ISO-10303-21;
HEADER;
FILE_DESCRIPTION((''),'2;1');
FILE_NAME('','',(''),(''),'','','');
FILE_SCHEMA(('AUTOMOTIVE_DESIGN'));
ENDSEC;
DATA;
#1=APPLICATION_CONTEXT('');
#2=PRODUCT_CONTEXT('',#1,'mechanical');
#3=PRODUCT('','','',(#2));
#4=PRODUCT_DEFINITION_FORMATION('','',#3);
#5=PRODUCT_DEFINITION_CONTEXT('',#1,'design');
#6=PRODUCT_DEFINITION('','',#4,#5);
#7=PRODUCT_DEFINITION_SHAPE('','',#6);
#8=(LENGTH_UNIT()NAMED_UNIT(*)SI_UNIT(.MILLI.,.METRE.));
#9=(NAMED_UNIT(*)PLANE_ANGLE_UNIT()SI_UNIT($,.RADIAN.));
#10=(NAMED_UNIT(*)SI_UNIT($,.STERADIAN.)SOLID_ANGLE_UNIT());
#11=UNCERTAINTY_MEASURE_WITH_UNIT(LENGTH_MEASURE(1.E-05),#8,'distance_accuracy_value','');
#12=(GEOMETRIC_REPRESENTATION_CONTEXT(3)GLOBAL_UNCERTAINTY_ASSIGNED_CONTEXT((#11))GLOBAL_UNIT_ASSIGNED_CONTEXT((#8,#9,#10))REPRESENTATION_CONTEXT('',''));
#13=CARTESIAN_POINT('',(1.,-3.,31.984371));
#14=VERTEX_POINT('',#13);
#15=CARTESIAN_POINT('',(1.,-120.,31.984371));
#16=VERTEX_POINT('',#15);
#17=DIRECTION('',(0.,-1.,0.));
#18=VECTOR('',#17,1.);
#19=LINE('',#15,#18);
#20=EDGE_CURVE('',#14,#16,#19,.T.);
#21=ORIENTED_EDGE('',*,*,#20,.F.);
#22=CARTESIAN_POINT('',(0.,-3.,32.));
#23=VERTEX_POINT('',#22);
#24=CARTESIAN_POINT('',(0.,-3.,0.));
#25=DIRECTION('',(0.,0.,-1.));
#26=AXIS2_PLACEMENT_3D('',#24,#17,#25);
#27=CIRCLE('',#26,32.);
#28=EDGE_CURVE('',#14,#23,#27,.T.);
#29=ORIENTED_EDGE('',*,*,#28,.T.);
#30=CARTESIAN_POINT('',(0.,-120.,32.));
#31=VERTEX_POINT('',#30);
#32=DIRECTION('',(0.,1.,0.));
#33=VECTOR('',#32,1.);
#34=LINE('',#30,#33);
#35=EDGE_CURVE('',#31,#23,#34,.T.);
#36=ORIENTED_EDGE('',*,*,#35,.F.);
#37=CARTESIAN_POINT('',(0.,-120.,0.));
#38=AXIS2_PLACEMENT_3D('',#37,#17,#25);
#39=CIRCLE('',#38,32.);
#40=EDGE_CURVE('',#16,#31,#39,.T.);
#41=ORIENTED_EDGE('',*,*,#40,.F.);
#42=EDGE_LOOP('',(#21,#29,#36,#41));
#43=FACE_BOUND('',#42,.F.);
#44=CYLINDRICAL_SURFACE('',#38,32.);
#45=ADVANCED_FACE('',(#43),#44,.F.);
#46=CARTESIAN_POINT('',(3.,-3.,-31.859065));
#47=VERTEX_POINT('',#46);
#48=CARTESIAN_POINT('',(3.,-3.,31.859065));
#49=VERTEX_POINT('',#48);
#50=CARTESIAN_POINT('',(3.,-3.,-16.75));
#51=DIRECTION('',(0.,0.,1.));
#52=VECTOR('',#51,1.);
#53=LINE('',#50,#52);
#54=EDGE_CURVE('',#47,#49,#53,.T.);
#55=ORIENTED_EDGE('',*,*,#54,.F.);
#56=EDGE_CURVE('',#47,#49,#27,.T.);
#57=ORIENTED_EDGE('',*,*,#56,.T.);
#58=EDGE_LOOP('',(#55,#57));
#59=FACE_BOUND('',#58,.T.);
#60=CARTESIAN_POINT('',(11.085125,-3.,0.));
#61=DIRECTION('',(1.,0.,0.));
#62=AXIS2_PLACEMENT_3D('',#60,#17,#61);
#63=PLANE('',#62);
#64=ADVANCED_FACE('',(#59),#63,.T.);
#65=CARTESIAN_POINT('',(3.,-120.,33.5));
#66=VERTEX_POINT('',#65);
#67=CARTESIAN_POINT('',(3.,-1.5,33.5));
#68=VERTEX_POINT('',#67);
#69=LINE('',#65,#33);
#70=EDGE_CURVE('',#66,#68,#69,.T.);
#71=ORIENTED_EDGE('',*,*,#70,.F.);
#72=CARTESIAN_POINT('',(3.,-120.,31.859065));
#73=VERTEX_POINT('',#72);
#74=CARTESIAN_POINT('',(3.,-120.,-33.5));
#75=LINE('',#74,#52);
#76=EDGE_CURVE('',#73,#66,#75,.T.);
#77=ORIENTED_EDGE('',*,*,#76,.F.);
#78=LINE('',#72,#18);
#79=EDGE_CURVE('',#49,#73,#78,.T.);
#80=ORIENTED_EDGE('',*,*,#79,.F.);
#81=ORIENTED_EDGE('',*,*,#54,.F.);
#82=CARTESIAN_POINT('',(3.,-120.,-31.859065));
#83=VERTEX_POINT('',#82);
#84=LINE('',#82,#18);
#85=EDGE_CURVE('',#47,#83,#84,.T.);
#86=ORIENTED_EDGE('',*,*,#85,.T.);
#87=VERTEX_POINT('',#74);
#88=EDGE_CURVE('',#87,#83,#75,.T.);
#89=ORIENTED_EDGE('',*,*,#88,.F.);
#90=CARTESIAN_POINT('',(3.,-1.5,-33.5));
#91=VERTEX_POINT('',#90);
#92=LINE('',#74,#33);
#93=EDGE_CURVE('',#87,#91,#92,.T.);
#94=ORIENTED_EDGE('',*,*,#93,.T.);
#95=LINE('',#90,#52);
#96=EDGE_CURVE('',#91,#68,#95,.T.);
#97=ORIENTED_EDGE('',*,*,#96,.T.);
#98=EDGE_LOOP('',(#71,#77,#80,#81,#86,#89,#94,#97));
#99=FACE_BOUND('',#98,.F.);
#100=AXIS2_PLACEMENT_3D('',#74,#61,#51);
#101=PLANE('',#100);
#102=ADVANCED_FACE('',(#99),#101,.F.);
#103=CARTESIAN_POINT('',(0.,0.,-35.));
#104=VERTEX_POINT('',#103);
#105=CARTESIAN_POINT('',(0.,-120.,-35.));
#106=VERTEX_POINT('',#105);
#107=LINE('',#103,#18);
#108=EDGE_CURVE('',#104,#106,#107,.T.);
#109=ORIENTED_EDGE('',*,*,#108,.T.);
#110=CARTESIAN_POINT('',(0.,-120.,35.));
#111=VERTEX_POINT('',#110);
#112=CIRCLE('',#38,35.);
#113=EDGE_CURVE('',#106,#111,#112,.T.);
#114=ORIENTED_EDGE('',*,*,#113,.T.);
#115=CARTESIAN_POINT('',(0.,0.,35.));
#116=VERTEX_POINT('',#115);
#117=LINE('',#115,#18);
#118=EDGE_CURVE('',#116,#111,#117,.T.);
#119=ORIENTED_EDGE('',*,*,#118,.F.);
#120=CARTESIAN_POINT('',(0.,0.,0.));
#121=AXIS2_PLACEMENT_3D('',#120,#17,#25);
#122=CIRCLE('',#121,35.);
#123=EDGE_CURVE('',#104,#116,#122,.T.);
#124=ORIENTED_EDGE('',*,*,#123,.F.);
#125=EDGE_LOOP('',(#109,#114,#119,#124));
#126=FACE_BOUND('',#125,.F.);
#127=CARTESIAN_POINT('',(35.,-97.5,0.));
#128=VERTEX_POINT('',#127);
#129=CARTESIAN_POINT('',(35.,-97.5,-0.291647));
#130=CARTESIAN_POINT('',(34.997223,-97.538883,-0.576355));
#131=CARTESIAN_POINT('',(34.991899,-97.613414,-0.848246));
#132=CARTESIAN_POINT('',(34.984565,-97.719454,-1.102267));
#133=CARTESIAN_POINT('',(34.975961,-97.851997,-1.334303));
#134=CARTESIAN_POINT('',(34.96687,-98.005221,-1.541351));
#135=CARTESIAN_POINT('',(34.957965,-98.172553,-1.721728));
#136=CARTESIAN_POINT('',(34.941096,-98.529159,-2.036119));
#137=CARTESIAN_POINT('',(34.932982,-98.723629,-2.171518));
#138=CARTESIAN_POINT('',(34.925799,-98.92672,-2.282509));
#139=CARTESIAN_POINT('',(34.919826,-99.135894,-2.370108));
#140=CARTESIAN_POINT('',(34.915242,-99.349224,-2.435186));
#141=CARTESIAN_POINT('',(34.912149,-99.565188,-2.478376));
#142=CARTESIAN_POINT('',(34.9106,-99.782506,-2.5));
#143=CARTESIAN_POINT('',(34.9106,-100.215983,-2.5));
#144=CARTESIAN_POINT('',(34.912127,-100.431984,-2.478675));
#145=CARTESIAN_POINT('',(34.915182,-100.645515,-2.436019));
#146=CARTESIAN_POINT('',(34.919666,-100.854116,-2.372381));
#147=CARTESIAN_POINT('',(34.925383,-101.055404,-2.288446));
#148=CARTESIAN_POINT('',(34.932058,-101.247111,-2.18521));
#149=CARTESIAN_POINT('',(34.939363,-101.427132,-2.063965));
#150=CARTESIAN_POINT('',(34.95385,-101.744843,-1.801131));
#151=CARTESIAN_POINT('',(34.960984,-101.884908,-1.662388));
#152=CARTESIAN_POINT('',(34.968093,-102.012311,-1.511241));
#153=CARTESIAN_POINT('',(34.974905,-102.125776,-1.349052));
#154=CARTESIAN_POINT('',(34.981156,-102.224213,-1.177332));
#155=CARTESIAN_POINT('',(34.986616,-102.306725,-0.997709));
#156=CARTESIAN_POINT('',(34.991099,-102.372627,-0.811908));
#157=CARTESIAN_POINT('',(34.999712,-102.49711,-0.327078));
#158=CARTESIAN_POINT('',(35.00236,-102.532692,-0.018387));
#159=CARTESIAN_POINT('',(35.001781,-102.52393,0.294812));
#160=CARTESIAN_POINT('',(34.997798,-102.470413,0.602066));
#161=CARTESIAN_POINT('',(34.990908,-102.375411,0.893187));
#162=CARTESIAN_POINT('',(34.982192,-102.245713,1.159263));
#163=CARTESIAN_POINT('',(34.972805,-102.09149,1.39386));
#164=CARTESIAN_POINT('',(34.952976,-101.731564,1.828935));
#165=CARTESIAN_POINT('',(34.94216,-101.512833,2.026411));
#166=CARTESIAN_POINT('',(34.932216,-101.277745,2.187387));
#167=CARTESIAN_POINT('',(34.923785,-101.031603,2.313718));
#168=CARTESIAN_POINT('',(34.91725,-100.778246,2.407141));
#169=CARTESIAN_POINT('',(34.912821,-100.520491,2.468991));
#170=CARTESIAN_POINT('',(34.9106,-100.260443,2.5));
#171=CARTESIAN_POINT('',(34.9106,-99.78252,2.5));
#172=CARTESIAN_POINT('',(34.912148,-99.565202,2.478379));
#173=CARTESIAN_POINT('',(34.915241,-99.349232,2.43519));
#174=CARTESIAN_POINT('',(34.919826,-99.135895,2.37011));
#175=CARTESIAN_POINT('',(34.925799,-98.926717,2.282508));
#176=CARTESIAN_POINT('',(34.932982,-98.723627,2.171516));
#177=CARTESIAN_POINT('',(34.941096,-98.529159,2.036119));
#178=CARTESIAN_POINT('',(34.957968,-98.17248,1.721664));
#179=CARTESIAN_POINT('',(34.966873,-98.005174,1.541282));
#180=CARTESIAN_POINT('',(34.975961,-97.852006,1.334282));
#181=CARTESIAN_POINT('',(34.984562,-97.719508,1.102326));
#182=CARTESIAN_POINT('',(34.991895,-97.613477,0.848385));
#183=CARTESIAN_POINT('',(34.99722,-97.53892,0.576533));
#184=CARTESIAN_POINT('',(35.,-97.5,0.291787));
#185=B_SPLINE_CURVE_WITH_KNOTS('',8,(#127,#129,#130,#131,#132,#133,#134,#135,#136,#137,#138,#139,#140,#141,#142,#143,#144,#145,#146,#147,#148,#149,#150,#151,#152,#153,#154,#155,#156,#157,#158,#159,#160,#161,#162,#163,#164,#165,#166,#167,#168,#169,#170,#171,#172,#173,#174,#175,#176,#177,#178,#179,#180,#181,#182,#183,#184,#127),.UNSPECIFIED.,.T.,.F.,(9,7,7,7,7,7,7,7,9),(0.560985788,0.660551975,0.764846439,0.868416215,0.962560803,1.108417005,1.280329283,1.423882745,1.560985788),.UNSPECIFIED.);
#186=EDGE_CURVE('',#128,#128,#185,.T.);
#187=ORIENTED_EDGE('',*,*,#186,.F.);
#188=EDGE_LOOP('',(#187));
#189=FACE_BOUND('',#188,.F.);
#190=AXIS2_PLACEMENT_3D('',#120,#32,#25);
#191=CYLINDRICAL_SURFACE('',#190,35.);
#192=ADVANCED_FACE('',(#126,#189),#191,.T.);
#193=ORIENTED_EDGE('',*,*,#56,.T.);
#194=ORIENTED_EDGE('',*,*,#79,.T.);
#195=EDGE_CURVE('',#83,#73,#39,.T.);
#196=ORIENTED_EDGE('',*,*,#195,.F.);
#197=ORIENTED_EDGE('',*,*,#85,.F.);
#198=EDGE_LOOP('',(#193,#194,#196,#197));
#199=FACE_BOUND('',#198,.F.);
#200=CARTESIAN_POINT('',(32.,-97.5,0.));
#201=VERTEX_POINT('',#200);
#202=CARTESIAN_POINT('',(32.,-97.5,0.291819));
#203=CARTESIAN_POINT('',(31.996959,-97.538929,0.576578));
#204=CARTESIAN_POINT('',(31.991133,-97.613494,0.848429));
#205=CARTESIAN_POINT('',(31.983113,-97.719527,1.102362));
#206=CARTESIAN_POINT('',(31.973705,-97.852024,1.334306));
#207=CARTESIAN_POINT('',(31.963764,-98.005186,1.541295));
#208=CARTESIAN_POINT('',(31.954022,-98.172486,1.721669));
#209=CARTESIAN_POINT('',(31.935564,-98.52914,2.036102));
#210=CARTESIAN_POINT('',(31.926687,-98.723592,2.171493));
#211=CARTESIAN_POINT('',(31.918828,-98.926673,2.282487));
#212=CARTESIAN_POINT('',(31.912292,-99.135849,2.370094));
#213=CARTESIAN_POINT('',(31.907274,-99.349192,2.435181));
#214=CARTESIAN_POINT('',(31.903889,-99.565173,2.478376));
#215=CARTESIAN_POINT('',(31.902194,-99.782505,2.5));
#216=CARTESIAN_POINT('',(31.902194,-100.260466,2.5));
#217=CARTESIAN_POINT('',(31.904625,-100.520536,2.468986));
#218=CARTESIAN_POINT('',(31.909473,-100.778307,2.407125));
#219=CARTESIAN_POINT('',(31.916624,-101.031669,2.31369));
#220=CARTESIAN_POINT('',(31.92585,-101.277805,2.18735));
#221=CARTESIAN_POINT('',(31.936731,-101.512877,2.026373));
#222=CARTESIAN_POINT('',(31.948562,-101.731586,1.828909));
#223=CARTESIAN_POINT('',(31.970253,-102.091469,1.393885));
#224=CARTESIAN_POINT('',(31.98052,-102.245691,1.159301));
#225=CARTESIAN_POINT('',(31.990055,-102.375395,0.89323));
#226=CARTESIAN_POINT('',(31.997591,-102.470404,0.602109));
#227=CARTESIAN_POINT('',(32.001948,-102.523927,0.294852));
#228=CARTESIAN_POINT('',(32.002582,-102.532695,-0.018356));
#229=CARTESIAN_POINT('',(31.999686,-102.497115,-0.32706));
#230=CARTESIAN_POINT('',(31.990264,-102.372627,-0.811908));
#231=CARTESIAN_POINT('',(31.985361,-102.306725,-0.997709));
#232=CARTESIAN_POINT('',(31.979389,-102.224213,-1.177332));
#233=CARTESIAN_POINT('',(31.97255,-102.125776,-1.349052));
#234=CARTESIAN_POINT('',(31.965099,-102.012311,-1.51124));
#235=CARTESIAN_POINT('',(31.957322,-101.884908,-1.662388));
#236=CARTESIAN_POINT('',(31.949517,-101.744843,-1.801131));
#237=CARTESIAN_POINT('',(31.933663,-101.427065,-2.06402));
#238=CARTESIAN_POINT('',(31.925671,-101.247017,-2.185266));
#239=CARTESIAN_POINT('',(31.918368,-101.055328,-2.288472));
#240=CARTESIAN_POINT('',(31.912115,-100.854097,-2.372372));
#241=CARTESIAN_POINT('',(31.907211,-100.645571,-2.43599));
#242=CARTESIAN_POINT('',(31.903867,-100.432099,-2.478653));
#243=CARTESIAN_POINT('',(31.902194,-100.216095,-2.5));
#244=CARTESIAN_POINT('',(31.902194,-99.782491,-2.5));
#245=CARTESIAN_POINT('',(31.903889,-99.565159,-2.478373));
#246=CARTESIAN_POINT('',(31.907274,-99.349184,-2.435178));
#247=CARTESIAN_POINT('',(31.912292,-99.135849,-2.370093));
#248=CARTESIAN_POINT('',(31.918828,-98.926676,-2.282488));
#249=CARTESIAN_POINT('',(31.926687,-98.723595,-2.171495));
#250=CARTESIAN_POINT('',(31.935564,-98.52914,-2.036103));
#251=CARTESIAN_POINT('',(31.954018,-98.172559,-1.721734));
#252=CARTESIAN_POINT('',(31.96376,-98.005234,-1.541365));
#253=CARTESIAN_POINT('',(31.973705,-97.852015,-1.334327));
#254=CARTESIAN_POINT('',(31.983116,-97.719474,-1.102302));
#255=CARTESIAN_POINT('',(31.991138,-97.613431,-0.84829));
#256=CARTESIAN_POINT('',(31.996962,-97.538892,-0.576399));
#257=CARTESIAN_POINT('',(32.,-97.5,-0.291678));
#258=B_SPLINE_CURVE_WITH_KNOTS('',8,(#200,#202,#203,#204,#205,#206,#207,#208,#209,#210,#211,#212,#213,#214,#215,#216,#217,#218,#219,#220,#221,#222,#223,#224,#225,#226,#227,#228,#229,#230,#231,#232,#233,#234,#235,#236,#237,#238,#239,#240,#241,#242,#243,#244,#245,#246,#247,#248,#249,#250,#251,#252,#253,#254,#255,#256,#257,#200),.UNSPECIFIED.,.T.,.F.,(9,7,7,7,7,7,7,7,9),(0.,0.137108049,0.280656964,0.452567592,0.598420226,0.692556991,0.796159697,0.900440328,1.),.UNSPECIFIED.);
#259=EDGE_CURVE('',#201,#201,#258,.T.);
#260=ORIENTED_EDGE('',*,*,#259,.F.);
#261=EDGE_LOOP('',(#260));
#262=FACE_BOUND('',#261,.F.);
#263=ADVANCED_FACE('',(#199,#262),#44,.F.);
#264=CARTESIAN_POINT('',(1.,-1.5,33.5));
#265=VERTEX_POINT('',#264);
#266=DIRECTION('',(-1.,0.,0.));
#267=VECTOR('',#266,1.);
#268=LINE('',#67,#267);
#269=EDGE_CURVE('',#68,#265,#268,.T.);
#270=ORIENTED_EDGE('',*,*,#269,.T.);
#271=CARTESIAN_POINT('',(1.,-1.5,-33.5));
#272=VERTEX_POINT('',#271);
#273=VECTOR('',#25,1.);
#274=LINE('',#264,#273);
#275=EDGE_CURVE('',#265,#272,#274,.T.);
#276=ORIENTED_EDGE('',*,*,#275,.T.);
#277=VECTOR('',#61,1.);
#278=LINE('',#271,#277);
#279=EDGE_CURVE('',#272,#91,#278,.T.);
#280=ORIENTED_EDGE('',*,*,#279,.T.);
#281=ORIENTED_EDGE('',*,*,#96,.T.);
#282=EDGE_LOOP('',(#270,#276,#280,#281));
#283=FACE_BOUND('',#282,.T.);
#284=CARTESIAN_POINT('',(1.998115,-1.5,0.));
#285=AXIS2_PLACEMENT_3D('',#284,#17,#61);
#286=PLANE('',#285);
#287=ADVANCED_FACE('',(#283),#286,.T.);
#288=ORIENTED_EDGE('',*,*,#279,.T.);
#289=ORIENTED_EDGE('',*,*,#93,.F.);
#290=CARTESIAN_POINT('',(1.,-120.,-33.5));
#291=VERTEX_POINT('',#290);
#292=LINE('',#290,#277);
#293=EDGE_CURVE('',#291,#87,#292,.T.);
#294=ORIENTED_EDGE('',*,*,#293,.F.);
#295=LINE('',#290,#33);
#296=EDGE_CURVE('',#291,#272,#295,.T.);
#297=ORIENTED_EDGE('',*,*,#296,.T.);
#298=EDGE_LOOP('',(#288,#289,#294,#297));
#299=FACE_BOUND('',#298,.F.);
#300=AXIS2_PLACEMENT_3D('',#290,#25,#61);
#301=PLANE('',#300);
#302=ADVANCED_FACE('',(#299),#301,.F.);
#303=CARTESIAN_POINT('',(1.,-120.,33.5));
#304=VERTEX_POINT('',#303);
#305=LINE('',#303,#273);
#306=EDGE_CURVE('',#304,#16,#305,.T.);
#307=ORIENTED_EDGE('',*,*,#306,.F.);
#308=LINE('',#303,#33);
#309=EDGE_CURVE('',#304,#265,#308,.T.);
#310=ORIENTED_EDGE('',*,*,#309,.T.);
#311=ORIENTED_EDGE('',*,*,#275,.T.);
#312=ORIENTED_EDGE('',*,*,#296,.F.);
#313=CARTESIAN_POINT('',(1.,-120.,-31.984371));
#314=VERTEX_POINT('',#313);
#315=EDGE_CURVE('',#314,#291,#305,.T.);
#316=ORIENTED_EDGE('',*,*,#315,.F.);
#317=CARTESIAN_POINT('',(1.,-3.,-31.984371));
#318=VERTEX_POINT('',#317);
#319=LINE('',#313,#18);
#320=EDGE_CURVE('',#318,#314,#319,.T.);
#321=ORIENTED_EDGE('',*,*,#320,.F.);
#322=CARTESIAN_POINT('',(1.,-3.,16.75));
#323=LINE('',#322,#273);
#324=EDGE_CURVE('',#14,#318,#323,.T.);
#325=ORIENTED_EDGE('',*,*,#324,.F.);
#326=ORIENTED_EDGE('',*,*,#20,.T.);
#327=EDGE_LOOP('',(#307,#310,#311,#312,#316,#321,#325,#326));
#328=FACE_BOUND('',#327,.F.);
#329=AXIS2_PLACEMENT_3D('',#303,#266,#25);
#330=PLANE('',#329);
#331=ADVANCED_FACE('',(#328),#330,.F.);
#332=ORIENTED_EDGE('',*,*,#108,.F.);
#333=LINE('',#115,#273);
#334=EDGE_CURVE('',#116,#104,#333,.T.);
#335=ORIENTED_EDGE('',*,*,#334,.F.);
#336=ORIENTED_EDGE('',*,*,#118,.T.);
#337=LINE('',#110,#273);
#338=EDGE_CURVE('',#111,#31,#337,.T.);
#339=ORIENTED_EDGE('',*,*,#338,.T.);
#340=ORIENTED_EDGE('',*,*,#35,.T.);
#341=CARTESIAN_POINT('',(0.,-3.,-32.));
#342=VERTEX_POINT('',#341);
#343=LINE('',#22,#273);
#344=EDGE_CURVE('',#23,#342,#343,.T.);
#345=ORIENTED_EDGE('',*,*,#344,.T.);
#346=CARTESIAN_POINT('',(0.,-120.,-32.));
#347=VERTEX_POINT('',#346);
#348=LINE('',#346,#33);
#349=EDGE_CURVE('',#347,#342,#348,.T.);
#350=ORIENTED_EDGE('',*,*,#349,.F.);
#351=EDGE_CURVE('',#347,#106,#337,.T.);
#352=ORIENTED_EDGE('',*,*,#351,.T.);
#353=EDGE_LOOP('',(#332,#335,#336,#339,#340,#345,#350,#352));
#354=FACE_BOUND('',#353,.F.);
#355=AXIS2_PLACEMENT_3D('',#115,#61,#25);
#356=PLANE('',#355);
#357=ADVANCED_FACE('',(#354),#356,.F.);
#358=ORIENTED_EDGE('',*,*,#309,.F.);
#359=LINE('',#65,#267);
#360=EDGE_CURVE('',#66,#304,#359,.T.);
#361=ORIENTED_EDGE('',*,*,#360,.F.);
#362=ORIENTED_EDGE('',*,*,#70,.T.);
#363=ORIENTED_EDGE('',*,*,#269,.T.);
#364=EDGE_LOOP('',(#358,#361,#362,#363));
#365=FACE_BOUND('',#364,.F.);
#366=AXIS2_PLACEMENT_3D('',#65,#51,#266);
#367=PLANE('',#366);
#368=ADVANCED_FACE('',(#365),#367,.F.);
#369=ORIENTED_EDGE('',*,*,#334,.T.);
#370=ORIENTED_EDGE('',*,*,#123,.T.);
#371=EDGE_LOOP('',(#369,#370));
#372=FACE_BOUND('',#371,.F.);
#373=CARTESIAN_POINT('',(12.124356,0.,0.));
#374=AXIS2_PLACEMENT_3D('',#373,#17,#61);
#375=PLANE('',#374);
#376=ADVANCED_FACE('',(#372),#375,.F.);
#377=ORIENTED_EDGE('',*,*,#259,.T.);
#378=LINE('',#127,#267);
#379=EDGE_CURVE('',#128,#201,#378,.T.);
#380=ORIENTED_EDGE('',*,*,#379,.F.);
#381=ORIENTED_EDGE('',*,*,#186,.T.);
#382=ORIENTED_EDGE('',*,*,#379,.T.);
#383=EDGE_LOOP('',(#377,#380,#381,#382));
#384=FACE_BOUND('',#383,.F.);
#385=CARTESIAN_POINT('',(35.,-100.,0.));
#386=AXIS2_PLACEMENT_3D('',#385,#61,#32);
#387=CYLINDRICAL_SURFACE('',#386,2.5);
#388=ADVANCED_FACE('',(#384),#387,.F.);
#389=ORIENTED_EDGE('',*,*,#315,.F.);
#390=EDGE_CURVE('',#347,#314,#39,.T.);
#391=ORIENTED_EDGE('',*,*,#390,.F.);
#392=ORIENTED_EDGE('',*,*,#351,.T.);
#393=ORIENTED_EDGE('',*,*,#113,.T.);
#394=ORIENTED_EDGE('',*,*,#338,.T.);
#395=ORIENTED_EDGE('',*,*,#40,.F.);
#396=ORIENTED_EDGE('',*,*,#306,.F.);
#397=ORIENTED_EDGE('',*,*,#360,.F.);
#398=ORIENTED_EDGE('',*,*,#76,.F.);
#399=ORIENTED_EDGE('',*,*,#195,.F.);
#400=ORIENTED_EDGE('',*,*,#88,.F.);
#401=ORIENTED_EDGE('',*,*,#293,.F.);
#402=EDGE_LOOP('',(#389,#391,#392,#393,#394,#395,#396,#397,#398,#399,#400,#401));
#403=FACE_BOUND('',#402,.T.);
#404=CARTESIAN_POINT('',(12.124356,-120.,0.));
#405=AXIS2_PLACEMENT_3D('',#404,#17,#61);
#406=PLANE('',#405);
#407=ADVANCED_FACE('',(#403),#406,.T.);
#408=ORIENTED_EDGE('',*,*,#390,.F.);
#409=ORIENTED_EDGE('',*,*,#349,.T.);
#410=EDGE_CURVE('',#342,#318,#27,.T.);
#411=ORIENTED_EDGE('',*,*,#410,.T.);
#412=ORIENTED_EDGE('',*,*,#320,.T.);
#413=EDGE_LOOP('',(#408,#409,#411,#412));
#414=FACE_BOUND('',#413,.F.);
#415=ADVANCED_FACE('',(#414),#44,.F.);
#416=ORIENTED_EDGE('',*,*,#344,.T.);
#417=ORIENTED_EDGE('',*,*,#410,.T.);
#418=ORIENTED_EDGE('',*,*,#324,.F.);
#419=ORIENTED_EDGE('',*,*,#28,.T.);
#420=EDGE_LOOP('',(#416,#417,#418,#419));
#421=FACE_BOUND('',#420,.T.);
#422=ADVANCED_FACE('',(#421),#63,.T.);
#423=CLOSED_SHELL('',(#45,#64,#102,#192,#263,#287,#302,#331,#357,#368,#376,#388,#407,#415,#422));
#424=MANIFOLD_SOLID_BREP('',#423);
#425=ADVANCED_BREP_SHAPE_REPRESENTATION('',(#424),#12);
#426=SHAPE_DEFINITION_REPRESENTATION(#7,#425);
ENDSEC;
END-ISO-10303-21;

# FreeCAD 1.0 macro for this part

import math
import FreeCAD as App
import Part
import Sketcher
Q = App.Units.Quantity


def add_polygon(sketch, points):
    """Adds a closed chain of lines whose ends are joined by coincident constraints."""
    first, n = sketch.GeometryCount, len(points)
    for a, b in zip(points, points[1:] + points[:1]):
        sketch.addGeometry(Part.LineSegment(App.Vector(*a, 0), App.Vector(*b, 0)), False)
    for i in range(n):
        sketch.addConstraint(Sketcher.Constraint("Coincident", first + i, 2, first + (i + 1) % n, 1))

doc = App.newDocument("Part")
body = doc.addObject("PartDesign::Body", "Body")

sketch1 = body.newObject("Sketcher::SketchObject", "Sketch")
sketch1.AttachmentSupport = (doc.getObject("XZ_Plane"), [""])
sketch1.MapMode = "FlatFace"
sketch1.addGeometry([
    Part.ArcOfCircle(Part.Circle(App.Vector(0, 0, 0), App.Vector(0, 0, 1), 35), math.radians(-90), math.radians(90)),
    Part.LineSegment(App.Vector(0, 35, 0), App.Vector(0, -35, 0)),
], False)
sketch1.addConstraint([
    Sketcher.Constraint("Coincident", 0, 1, 1, 2),
    Sketcher.Constraint("Coincident", 1, 1, 0, 2),
    Sketcher.Constraint("Vertical", 1),
    Sketcher.Constraint("Coincident", 0, 3, -1, 1),
    Sketcher.Constraint("PointOnObject", 0, 1, -2),
    Sketcher.Constraint("Radius", 0, Q("35 mm")),
])
pad1 = body.newObject("PartDesign::Pad", "Pad")
pad1.Profile = sketch1
pad1.Length = 120

sketch2 = body.newObject("Sketcher::SketchObject", "Sketch001")
sketch2.AttachmentSupport = (doc.getObject("XZ_Plane"), [""])
sketch2.MapMode = "FlatFace"
sketch2.AttachmentOffset = App.Placement(App.Vector(0, 0, 120), App.Rotation())
sketch2.addGeometry([
    Part.ArcOfCircle(Part.Circle(App.Vector(0, 0, 0), App.Vector(0, 0, 1), 32), math.radians(-90), math.radians(90)),
    Part.LineSegment(App.Vector(0, 32, 0), App.Vector(0, -32, 0)),
], False)
sketch2.addConstraint([
    Sketcher.Constraint("Coincident", 0, 1, 1, 2),
    Sketcher.Constraint("Coincident", 1, 1, 0, 2),
    Sketcher.Constraint("Vertical", 1),
    Sketcher.Constraint("Coincident", 0, 3, -1, 1),
    Sketcher.Constraint("PointOnObject", 0, 1, -2),
    Sketcher.Constraint("Radius", 0, Q("32 mm")),
])
pocket1 = body.newObject("PartDesign::Pocket", "Pocket")
pocket1.Profile = sketch2
pocket1.Length = 117

sketch3 = body.newObject("Sketcher::SketchObject", "Sketch002")
sketch3.AttachmentSupport = (doc.getObject("XZ_Plane"), [""])
sketch3.MapMode = "FlatFace"
sketch3.AttachmentOffset = App.Placement(App.Vector(0, 0, 120), App.Rotation())
add_polygon(sketch3, [(3, 33.5), (1, 33.5), (1, -33.5), (3, -33.5)])
sketch3.addConstraint([
    Sketcher.Constraint("Horizontal", 0),
    Sketcher.Constraint("Vertical", 1),
    Sketcher.Constraint("Horizontal", 2),
    Sketcher.Constraint("Vertical", 3),
    Sketcher.Constraint("DistanceX", 0, 2, 0, 1, Q("2 mm")),
    Sketcher.Constraint("DistanceY", 1, 2, 1, 1, Q("67 mm")),
    Sketcher.Constraint("DistanceX", -1, 1, 0, 2, Q("1 mm")),
    Sketcher.Constraint("DistanceY", -1, 1, 0, 2, Q("33.5 mm")),
])
pocket2 = body.newObject("PartDesign::Pocket", "Pocket001")
pocket2.Profile = sketch3
pocket2.Length = 118.5

sketch4 = body.newObject("Sketcher::SketchObject", "Sketch003")
sketch4.AttachmentSupport = (doc.getObject("YZ_Plane"), [""])
sketch4.MapMode = "FlatFace"
sketch4.AttachmentOffset = App.Placement(App.Vector(0, 0, 35), App.Rotation())
sketch4.addGeometry(Part.Circle(App.Vector(-100, 0, 0), App.Vector(0, 0, 1), 2.5), False)
sketch4.addConstraint([
    Sketcher.Constraint("PointOnObject", 0, 3, -1),
    Sketcher.Constraint("Diameter", 0, Q("5 mm")),
    Sketcher.Constraint("DistanceX", 0, 3, -1, 1, Q("100 mm")),
])
pocket3 = body.newObject("PartDesign::Pocket", "Pocket002")
pocket3.Profile = sketch4
pocket3.Length = 25

doc.recompute()
